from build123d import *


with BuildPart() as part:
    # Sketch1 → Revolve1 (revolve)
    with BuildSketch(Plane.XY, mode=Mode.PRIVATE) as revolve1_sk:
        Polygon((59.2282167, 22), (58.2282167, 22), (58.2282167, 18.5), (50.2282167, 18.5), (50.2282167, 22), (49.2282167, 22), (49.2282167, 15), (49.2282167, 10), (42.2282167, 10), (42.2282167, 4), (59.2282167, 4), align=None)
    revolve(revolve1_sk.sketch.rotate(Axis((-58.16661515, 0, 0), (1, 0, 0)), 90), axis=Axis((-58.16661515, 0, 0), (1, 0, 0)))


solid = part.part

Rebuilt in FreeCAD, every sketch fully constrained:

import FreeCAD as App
import Part
import Sketcher
from FreeCAD import Vector


def add_polygon(sketch, points):
    """Adds a closed chain of lines whose ends are joined by coincident constraints."""
    first, n = sketch.GeometryCount, len(points)
    for a, b in zip(points, points[1:] + points[:1]):
        sketch.addGeometry(Part.LineSegment(App.Vector(*a, 0), App.Vector(*b, 0)), False)
    for i in range(n):
        sketch.addConstraint(Sketcher.Constraint("Coincident", first + i, 2, first + (i + 1) % n, 1))

doc = App.newDocument("Part")
body = doc.addObject("PartDesign::Body", "Body")

sketch1 = doc.addObject("Sketcher::SketchObject", "Sketch")
body.addObject(sketch1)
sketch1.AttachmentSupport = (doc.XY_Plane, [""])
sketch1.MapMode = "FlatFace"
add_polygon(sketch1, [(59.2, 22), (58.2, 22), (58.2, 18.5), (50.2, 18.5), (50.2, 22), (49.2, 22), (49.2, 10), (42.2, 10), (42.2, 4), (59.2, 4)])
sketch1.addConstraint([
    Sketcher.Constraint("Horizontal", 0),
    Sketcher.Constraint("Vertical", 1),
    Sketcher.Constraint("Horizontal", 2),
    Sketcher.Constraint("Vertical", 3),
    Sketcher.Constraint("Horizontal", 4),
    Sketcher.Constraint("Vertical", 5),
    Sketcher.Constraint("Horizontal", 6),
    Sketcher.Constraint("Vertical", 7),
    Sketcher.Constraint("Horizontal", 8),
    Sketcher.Constraint("Vertical", 9),
    Sketcher.Constraint("Horizontal", 0, 2, 3, 2),
    Sketcher.Constraint("Equal", 0, 4),
    Sketcher.Constraint("DistanceX", 0, 2, 0, 1, 1.0),
    Sketcher.Constraint("DistanceX", 2, 2, 2, 1, 8.0),
    Sketcher.Constraint("DistanceX", 6, 2, 6, 1, 7.0),
    Sketcher.Constraint("DistanceY", 5, 2, 5, 1, 12.0),
    Sketcher.Constraint("DistanceY", 7, 2, 7, 1, 6.0),
    Sketcher.Constraint("DistanceY", 1, 2, 1, 1, 3.5),
    Sketcher.Constraint("DistanceY", -1, 1, 0, 2, 22.0),
    Sketcher.Constraint("DistanceX", -1, 1, 0, 2, 58.228217),
])
revolution = doc.addObject("PartDesign::Revolution", "Revolution")
body.addObject(revolution)
revolution.Profile = sketch1
revolution.ReferenceAxis = (sketch1, ["H_Axis"])
revolution.Angle = 360

doc.recompute()
